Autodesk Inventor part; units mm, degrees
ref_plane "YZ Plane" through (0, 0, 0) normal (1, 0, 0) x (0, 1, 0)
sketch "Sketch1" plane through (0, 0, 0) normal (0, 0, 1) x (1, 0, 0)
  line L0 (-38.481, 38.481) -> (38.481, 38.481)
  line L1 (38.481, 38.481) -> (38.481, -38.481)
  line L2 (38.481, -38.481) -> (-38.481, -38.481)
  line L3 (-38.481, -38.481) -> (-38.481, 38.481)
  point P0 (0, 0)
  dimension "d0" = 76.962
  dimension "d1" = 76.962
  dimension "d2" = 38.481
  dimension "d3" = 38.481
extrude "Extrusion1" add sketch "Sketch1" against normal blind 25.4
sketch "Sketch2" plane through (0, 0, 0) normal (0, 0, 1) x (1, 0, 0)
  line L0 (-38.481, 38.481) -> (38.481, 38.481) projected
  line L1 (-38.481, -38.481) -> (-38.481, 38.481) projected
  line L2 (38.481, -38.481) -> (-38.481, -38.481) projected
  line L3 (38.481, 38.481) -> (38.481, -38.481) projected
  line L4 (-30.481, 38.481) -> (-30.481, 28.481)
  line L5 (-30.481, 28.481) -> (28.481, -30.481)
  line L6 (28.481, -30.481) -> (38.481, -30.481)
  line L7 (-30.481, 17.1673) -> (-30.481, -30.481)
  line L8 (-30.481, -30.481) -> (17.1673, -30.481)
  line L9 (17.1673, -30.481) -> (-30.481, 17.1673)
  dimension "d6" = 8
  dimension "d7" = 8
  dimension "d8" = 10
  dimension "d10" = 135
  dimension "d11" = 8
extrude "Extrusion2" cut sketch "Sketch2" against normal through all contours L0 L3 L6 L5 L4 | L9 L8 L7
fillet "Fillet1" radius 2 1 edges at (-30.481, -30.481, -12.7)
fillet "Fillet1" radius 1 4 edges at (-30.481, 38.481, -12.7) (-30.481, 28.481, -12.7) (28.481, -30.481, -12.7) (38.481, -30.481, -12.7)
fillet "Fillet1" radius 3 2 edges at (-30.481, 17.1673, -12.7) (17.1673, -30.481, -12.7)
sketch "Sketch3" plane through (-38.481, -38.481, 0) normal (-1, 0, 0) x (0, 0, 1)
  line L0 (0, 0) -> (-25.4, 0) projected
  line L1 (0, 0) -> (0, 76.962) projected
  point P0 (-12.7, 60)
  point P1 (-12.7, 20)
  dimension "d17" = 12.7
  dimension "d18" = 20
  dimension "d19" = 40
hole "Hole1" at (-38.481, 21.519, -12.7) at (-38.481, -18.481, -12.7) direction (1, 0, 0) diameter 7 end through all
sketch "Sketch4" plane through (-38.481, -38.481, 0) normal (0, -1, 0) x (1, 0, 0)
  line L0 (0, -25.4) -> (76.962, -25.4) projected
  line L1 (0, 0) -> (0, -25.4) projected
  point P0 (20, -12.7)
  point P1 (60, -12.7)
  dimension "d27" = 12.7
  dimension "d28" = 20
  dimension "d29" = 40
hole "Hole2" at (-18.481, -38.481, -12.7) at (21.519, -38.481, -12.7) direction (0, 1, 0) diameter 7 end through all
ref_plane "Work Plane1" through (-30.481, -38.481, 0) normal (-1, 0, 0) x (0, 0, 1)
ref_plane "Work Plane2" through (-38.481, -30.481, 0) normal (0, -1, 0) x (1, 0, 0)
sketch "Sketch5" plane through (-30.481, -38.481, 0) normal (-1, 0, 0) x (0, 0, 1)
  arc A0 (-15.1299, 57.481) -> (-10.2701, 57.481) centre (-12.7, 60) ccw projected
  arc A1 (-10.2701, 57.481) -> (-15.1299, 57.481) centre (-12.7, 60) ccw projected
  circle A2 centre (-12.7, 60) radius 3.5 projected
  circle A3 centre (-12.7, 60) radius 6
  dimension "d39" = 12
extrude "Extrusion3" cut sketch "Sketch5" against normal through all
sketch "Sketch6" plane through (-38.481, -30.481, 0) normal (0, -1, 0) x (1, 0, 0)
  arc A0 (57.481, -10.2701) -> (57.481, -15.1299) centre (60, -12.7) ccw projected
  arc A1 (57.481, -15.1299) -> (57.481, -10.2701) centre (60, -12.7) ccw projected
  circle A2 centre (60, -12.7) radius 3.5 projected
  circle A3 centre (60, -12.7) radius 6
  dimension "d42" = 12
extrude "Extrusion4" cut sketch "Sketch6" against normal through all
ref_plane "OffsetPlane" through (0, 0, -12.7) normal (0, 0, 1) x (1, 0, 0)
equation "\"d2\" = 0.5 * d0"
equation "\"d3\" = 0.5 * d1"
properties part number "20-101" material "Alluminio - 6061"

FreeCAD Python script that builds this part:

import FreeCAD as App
import Part
import Sketcher
from FreeCAD import Vector


def edges_at(feature, points):
    """Names of the edges that pass closest to the given points."""
    edges = feature.Shape.Edges
    near = lambda p: min(range(len(edges)), key=lambda i: edges[i].distToShape(Part.Vertex(*p))[0])
    return sorted({f"Edge{near(p) + 1}" for p in points})

doc = App.newDocument("Part")
params = doc.addObject("Spreadsheet::Sheet", "Params")
for row, (alias, value) in enumerate([
    ("pad1_length", "25.4 mm"),
    ("sketch2_width", "10 mm"),
    ("fillet_radius", "2 mm"),
    ("fillet2_radius", "1 mm"),
    ("fillet3_radius", "3 mm"),
    ("sketch3_diameter", "7 mm"),
    ("hole_diameter", "7 mm"),
    ("sketch4_diameter", "7 mm"),
    ("hole2_diameter", "7 mm"),
    ("sketch5_diameter", "12 mm"),
    ("sketch5_diameter2", "7 mm"),
    ("sketch6_diameter", "12 mm"),
    ("sketch6_diameter2", "7 mm"),
], start=1):
    params.set(f"A{row}", alias)
    params.set(f"B{row}", "=" + value)
    params.setAlias(f"B{row}", alias)

body = doc.addObject("PartDesign::Body", "Body")

sketch1 = body.newObject("Sketcher::SketchObject", "Sketch")
sketch1.AttachmentSupport = (doc.getObject("XY_Plane"), [""])
sketch1.MapMode = "FlatFace"
sketch1.addGeometry([
    Part.LineSegment(Vector(38, 38, 0), Vector(-38, 38, 0)),
    Part.LineSegment(Vector(-38, 38, 0), Vector(-38, -38, 0)),
    Part.LineSegment(Vector(-38, -38, 0), Vector(38, -38, 0)),
    Part.LineSegment(Vector(38, -38, 0), Vector(38, 38, 0)),
], False)
sketch1.addConstraint([
    Sketcher.Constraint("Coincident", 0, 2, 1, 1),
    Sketcher.Constraint("Coincident", 1, 2, 2, 1),
    Sketcher.Constraint("Coincident", 2, 2, 3, 1),
    Sketcher.Constraint("Coincident", 3, 2, 0, 1),
    Sketcher.Constraint("Horizontal", 0),
    Sketcher.Constraint("Vertical", 1),
    Sketcher.Constraint("Horizontal", 2),
    Sketcher.Constraint("Vertical", 3),
    Sketcher.Constraint("Symmetric", 0, 2, 2, 2, -1, 1),
    Sketcher.Constraint("Equal", 2, 1),
    Sketcher.Constraint("DistanceX", 0, 2, 0, 1, 76.962),
])
pad1 = body.newObject("PartDesign::Pad", "Pad")
pad1.Profile = sketch1
pad1.setExpression("Length", "Params.pad1_length")
pad1.Reversed = True

sketch2 = body.newObject("Sketcher::SketchObject", "Sketch001")
sketch2.AttachmentSupport = (doc.getObject("XY_Plane"), [""])
sketch2.MapMode = "FlatFace"
sketch2.addGeometry([
    Part.LineSegment(Vector(38, 38, 0), Vector(-30, 38, 0)),
    Part.LineSegment(Vector(-30, 38, 0), Vector(-30, 28, 0)),
    Part.LineSegment(Vector(-30, 28, 0), Vector(28, -30, 0)),
    Part.LineSegment(Vector(28, -30, 0), Vector(38, -30, 0)),
    Part.LineSegment(Vector(38, -30, 0), Vector(38, 38, 0)),
    Part.LineSegment(Vector(17, -30, 0), Vector(-30, 17, 0)),
    Part.LineSegment(Vector(-30, 17, 0), Vector(-30, -30, 0)),
    Part.LineSegment(Vector(-30, -30, 0), Vector(17, -30, 0)),
], False)
sketch2.addConstraint([
    Sketcher.Constraint("Coincident", 0, 2, 1, 1),
    Sketcher.Constraint("Coincident", 1, 2, 2, 1),
    Sketcher.Constraint("Coincident", 2, 2, 3, 1),
    Sketcher.Constraint("Coincident", 3, 2, 4, 1),
    Sketcher.Constraint("Coincident", 4, 2, 0, 1),
    Sketcher.Constraint("Coincident", 5, 2, 6, 1),
    Sketcher.Constraint("Coincident", 6, 2, 7, 1),
    Sketcher.Constraint("Coincident", 7, 2, 5, 1),
    Sketcher.Constraint("Horizontal", 0),
    Sketcher.Constraint("Vertical", 1),
    Sketcher.Constraint("Horizontal", 3),
    Sketcher.Constraint("Vertical", 4),
    Sketcher.Constraint("Vertical", 6),
    Sketcher.Constraint("Horizontal", 7),
    Sketcher.Constraint("Parallel", 2, 5),
    Sketcher.Constraint("Horizontal", 3, 2, 6, 2),
    Sketcher.Constraint("Vertical", 1, 2, 5, 2),
    Sketcher.Constraint("Equal", 3, 1),
    Sketcher.Constraint("Equal", 0, 4),
    Sketcher.Constraint("DistanceX", 3, 1, 3, 2, 10.0),
    Sketcher.Constraint("DistanceX", 0, 2, 0, 1, 68.962),
    Sketcher.Constraint("DistanceX", 7, 1, 7, 2, 47.6483),
    Sketcher.Constraint("DistanceX", 0, 2, -1, 1, 30.481),
    Sketcher.Constraint("DistanceY", -1, 1, 0, 2, 38.481),
])
sketch2.setExpression("Constraints[19]", "Params.sketch2_width")
pocket1 = body.newObject("PartDesign::Pocket", "Pocket")
pocket1.Profile = sketch2
pocket1.Type = "ThroughAll"
doc.recompute()

fillet = body.newObject("PartDesign::Fillet", "Fillet")
fillet.Base = (pocket1, edges_at(pocket1, [(-30.481, -30.481, -12.7)]))
fillet.setExpression("Radius", "Params.fillet_radius")
doc.recompute()

fillet2 = body.newObject("PartDesign::Fillet", "Fillet001")
fillet2.Base = (fillet, edges_at(fillet, [
    (-30.481, 38.481, -12.7),
    (-30.481, 28.481, -12.7),
    (28.481, -30.481, -12.7),
    (38.481, -30.481, -12.7),
]))
fillet2.setExpression("Radius", "Params.fillet2_radius")
doc.recompute()

fillet3 = body.newObject("PartDesign::Fillet", "Fillet002")
fillet3.Base = (fillet2, edges_at(fillet2, [(-30.481, 17.167, -12.7), (17.167, -30.481, -12.7)]))
fillet3.setExpression("Radius", "Params.fillet3_radius")

sketch3 = body.newObject("Sketcher::SketchObject", "Sketch002")
sketch3.AttachmentSupport = (doc.getObject("YZ_Plane"), [""])
sketch3.MapMode = "FlatFace"
sketch3.AttachmentOffset = App.Placement(Vector(0, 0, -38.481), App.Rotation())
sketch3.addGeometry([
    Part.Circle(Vector(21.5, -12.7, 0), Vector(0, 0, 1), 3.5),
    Part.Circle(Vector(-18.5, -12.7, 0), Vector(0, 0, 1), 3.5),
], False)
sketch3.addConstraint([
    Sketcher.Constraint("Equal", 0, 1),
    Sketcher.Constraint("Horizontal", 0, 3, 1, 3),
    Sketcher.Constraint("Diameter", 0, 7.0),
    Sketcher.Constraint("DistanceX", 1, 3, 0, 3, 40.0),
    Sketcher.Constraint("DistanceY", 0, 3, -1, 1, 12.7),
    Sketcher.Constraint("DistanceX", -1, 1, 0, 3, 21.519),
])
sketch3.setExpression("Constraints[2]", "Params.sketch3_diameter")
doc.recompute()
hole = body.newObject("PartDesign::Hole", "Hole")
hole.Profile = sketch3
hole.ThreadType = "None"
hole.setExpression("Diameter", "Params.hole_diameter")
hole.DepthType = "ThroughAll"
hole.Reversed = True

sketch4 = body.newObject("Sketcher::SketchObject", "Sketch003")
sketch4.AttachmentSupport = (doc.getObject("XZ_Plane"), [""])
sketch4.MapMode = "FlatFace"
sketch4.AttachmentOffset = App.Placement(Vector(0, 0, 38.481), App.Rotation())
sketch4.addGeometry([
    Part.Circle(Vector(-18.5, -12.7, 0), Vector(0, 0, 1), 3.5),
    Part.Circle(Vector(21.5, -12.7, 0), Vector(0, 0, 1), 3.5),
], False)
sketch4.addConstraint([
    Sketcher.Constraint("Equal", 0, 1),
    Sketcher.Constraint("Horizontal", 0, 3, 1, 3),
    Sketcher.Constraint("Diameter", 0, 7.0),
    Sketcher.Constraint("DistanceX", 0, 3, 1, 3, 40.0),
    Sketcher.Constraint("DistanceY", 0, 3, -1, 1, 12.7),
    Sketcher.Constraint("DistanceX", 0, 3, -1, 1, 18.481),
])
sketch4.setExpression("Constraints[2]", "Params.sketch4_diameter")
doc.recompute()
hole2 = body.newObject("PartDesign::Hole", "Hole001")
hole2.Profile = sketch4
hole2.ThreadType = "None"
hole2.setExpression("Diameter", "Params.hole2_diameter")
hole2.DepthType = "ThroughAll"

sketch5 = body.newObject("Sketcher::SketchObject", "Sketch004")
sketch5.AttachmentSupport = (doc.getObject("YZ_Plane"), [""])
sketch5.MapMode = "FlatFace"
sketch5.AttachmentOffset = App.Placement(Vector(0, 0, -30.481), App.Rotation())
sketch5.addGeometry([
    Part.Circle(Vector(21.5, -12.7, 0), Vector(0, 0, 1), 6),
    Part.Circle(Vector(21.5, -12.7, 0), Vector(0, 0, 1), 3.5),
], False)
sketch5.addConstraint([
    Sketcher.Constraint("Coincident", 1, 3, 0, 3),
    Sketcher.Constraint("Diameter", 0, 12.0),
    Sketcher.Constraint("Diameter", 1, 7.0),
    Sketcher.Constraint("DistanceY", 0, 3, -1, 1, 12.7),
    Sketcher.Constraint("DistanceX", -1, 1, 0, 3, 21.519),
])
sketch5.setExpression("Constraints[1]", "Params.sketch5_diameter")
sketch5.setExpression("Constraints[2]", "Params.sketch5_diameter2")
pocket2 = body.newObject("PartDesign::Pocket", "Pocket001")
pocket2.Profile = sketch5
pocket2.Type = "ThroughAll"
pocket2.Reversed = True

sketch6 = body.newObject("Sketcher::SketchObject", "Sketch005")
sketch6.AttachmentSupport = (doc.getObject("XZ_Plane"), [""])
sketch6.MapMode = "FlatFace"
sketch6.AttachmentOffset = App.Placement(Vector(0, 0, 30.481), App.Rotation())
sketch6.addGeometry([
    Part.Circle(Vector(21.5, -12.7, 0), Vector(0, 0, 1), 6),
    Part.Circle(Vector(21.5, -12.7, 0), Vector(0, 0, 1), 3.5),
], False)
sketch6.addConstraint([
    Sketcher.Constraint("Coincident", 1, 3, 0, 3),
    Sketcher.Constraint("Diameter", 0, 12.0),
    Sketcher.Constraint("Diameter", 1, 7.0),
    Sketcher.Constraint("DistanceY", 0, 3, -1, 1, 12.7),
    Sketcher.Constraint("DistanceX", -1, 1, 0, 3, 21.519),
])
sketch6.setExpression("Constraints[1]", "Params.sketch6_diameter")
sketch6.setExpression("Constraints[2]", "Params.sketch6_diameter2")
pocket3 = body.newObject("PartDesign::Pocket", "Pocket002")
pocket3.Profile = sketch6
pocket3.Type = "ThroughAll"

doc.recompute()
